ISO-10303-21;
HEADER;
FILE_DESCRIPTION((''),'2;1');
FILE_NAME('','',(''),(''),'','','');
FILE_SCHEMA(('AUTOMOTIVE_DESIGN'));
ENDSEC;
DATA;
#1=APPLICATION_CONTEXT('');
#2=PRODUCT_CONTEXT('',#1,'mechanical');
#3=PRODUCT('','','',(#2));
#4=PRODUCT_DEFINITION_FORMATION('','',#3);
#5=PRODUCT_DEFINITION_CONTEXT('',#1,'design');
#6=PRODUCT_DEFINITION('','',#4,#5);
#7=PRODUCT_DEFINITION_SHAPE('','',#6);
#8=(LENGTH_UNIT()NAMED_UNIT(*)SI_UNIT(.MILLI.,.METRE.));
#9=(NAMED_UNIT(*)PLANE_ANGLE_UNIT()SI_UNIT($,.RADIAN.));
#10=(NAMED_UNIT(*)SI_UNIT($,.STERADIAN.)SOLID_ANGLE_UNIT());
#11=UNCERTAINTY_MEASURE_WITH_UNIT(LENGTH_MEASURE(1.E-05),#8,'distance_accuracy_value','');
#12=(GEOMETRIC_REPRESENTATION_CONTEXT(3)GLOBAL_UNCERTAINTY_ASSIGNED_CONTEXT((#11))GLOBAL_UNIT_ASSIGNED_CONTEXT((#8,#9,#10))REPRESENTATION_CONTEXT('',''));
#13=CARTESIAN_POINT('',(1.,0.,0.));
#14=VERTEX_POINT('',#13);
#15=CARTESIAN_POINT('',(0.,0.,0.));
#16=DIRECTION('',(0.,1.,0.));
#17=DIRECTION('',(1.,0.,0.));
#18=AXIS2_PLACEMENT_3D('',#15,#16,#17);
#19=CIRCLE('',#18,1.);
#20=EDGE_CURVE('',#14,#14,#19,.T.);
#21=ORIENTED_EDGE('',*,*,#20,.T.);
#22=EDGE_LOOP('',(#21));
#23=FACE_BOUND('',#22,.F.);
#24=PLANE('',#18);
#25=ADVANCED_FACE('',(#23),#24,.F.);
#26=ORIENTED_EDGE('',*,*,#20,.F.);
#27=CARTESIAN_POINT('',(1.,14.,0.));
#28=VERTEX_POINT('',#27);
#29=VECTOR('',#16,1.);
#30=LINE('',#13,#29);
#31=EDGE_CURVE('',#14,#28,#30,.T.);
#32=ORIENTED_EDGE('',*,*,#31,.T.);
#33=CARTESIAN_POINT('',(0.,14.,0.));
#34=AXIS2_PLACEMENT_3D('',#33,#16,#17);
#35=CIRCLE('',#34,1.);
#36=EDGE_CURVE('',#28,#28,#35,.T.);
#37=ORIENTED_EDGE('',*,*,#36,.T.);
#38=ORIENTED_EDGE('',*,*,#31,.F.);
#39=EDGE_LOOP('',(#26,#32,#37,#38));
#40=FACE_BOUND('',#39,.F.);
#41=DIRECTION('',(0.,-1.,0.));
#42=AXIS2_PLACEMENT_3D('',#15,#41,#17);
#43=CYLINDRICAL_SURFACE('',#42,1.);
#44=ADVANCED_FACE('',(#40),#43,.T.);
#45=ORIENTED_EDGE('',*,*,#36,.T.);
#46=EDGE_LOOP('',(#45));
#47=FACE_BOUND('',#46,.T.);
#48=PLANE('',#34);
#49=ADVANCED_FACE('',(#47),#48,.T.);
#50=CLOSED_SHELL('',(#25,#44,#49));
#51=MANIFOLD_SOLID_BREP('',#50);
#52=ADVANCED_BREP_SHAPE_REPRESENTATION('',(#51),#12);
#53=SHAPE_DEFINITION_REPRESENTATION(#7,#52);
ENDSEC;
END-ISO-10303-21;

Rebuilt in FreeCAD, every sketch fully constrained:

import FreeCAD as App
import Part
import Sketcher

V = App.Vector
Q = App.Units.Quantity

doc = App.newDocument("Part")
body = doc.addObject("PartDesign::Body", "Body")

sketch1 = body.newObject("Sketcher::SketchObject", "Sketch")
sketch1.AttachmentSupport = (doc.getObject("XZ_Plane"), [""])
sketch1.MapMode = "FlatFace"
sketch1.addGeometry(Part.Circle(V(0, 0, 0), V(0, 0, 1), 1), False)
sketch1.addConstraint([
    Sketcher.Constraint("Coincident", 0, 3, -1, 1),
    Sketcher.Constraint("Diameter", 0, Q("2 mm")),
])
pad1 = body.newObject("PartDesign::Pad", "Pad")
pad1.Profile = sketch1
pad1.Length = 14
pad1.Reversed = True

doc.recompute()
